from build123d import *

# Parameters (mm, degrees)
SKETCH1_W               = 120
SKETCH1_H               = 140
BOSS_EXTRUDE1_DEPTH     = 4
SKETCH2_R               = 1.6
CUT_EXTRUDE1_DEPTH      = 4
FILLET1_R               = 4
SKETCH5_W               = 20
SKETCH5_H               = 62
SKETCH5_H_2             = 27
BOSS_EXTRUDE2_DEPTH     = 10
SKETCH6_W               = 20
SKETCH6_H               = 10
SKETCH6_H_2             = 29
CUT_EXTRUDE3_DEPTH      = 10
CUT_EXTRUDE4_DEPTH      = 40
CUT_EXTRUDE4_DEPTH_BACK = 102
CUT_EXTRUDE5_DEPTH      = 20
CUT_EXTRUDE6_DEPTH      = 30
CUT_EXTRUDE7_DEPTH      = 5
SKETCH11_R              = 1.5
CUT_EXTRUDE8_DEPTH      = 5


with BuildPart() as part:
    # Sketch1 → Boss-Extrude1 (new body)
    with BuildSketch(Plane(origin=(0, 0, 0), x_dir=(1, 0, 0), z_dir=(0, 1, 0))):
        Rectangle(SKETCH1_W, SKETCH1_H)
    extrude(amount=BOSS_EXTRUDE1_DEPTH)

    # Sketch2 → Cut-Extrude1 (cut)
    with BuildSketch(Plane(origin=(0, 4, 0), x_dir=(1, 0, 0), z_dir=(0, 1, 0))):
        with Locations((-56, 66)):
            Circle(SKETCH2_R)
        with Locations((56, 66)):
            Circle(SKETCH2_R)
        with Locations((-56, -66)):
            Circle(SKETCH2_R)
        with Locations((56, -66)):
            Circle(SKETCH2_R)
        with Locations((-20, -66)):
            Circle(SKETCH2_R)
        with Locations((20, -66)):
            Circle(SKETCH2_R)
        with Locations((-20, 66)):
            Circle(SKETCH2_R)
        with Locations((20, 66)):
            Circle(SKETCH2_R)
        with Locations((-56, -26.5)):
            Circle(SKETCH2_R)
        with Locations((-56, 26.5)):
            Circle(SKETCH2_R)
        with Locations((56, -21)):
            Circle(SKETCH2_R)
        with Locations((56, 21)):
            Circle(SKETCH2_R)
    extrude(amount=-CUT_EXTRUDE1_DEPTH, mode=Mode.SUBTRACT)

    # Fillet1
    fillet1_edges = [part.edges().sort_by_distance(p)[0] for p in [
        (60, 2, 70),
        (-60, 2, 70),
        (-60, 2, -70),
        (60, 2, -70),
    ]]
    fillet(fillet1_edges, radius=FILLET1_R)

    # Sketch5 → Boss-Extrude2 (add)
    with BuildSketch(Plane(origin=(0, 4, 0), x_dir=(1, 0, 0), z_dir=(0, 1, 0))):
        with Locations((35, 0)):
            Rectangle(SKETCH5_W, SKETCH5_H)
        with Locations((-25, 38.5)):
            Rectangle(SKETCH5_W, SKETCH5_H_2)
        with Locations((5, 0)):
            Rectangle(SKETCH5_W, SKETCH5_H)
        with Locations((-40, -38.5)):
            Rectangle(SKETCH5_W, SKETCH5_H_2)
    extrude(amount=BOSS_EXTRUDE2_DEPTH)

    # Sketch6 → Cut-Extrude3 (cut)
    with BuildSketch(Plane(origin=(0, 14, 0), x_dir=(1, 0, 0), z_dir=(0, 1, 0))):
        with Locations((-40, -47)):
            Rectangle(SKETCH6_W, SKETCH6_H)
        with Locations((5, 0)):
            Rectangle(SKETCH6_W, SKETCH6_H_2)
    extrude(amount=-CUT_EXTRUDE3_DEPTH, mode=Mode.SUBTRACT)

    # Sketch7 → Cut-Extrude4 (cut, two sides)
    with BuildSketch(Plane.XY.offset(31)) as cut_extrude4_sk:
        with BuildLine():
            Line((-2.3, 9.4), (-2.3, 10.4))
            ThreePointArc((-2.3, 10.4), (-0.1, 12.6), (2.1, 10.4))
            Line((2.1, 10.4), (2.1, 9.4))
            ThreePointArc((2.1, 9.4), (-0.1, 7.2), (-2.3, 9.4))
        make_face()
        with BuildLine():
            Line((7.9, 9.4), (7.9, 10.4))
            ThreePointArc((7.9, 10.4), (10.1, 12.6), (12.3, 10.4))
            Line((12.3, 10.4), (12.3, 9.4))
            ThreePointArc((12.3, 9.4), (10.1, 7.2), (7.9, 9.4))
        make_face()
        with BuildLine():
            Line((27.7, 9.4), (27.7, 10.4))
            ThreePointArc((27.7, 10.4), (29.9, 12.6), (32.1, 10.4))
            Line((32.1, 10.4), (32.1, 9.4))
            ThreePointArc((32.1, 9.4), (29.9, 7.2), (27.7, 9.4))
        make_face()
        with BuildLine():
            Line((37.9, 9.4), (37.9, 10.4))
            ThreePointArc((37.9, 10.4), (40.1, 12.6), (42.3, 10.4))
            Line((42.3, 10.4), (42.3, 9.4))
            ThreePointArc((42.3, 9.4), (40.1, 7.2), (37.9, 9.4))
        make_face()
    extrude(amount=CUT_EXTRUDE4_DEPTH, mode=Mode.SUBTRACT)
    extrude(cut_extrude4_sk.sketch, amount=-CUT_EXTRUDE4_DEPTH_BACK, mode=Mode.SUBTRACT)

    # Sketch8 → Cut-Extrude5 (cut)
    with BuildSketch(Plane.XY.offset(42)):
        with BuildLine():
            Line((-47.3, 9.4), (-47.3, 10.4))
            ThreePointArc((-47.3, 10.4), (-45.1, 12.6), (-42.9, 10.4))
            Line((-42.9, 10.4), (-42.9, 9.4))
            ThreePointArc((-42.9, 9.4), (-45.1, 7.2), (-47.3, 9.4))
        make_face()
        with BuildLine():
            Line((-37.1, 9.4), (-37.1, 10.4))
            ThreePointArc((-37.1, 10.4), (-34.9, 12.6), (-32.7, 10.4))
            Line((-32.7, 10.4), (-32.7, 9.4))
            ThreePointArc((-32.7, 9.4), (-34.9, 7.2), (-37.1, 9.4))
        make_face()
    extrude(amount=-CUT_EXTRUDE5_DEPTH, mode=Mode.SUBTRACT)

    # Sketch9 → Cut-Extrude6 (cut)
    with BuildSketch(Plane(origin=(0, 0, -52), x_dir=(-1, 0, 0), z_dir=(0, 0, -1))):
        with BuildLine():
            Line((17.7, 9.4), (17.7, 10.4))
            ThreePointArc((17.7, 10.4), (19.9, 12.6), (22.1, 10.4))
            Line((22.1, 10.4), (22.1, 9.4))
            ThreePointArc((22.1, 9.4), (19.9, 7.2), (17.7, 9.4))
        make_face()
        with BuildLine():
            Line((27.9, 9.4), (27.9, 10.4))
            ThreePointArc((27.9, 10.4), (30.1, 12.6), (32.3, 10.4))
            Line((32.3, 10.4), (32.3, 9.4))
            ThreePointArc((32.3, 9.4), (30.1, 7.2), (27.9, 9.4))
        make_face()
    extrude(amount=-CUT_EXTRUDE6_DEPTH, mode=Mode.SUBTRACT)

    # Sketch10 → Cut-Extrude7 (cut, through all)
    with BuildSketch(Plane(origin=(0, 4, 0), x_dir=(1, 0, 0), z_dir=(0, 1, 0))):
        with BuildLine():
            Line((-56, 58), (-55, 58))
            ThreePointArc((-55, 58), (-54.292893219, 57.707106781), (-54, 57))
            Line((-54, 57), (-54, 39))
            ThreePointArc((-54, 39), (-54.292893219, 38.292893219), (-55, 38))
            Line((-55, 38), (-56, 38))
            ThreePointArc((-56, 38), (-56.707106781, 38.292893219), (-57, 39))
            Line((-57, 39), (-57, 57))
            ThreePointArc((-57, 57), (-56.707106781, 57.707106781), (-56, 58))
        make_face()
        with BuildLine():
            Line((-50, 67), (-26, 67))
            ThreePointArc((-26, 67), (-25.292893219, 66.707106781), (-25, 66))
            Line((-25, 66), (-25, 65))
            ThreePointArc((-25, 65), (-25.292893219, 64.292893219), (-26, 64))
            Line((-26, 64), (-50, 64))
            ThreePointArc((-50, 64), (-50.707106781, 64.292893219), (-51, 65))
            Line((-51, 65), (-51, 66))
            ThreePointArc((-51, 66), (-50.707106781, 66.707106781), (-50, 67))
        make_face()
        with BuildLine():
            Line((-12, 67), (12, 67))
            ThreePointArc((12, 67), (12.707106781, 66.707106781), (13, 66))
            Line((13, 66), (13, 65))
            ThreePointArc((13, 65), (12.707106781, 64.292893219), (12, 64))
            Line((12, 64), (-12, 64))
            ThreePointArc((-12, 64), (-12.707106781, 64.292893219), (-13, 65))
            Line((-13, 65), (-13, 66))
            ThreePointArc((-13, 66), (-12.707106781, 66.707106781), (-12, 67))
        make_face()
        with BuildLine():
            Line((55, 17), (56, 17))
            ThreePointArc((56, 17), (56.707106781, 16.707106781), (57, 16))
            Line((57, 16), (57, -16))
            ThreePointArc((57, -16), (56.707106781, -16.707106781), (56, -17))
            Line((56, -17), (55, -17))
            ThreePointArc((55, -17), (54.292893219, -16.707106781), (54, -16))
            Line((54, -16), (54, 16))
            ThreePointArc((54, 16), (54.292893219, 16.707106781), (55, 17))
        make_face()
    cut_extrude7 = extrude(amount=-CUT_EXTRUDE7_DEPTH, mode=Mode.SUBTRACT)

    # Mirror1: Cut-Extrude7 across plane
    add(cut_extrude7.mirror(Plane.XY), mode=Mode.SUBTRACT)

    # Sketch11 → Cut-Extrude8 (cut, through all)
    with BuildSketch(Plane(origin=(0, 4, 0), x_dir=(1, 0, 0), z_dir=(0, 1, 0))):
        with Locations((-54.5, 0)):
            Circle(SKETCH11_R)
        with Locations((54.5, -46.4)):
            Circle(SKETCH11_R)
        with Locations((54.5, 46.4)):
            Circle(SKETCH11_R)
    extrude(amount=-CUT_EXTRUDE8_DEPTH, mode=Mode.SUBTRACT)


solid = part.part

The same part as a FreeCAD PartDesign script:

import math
import FreeCAD as App
import Part
import Sketcher
from FreeCAD import Vector


def edges_at(feature, points):
    """Names of the edges that pass closest to the given points."""
    edges = feature.Shape.Edges
    near = lambda p: min(range(len(edges)), key=lambda i: edges[i].distToShape(Part.Vertex(*p))[0])
    return sorted({f"Edge{near(p) + 1}" for p in points})


def add_polygon(sketch, points):
    """Adds a closed chain of lines whose ends are joined by coincident constraints."""
    first, n = sketch.GeometryCount, len(points)
    for a, b in zip(points, points[1:] + points[:1]):
        sketch.addGeometry(Part.LineSegment(App.Vector(*a, 0), App.Vector(*b, 0)), False)
    for i in range(n):
        sketch.addConstraint(Sketcher.Constraint("Coincident", first + i, 2, first + (i + 1) % n, 1))

doc = App.newDocument("Part")
body = doc.addObject("PartDesign::Body", "Body")

# Sketch on XZ plane
sketch1 = body.newObject("Sketcher::SketchObject", "Sketch")
sketch1.AttachmentSupport = (doc.getObject("XZ_Plane"), [""])
sketch1.MapMode = "FlatFace"
add_polygon(sketch1, [(-60, -70), (-60, 70), (60, 70), (60, -70)])  # lines 0-3
sketch1.addConstraint(Sketcher.Constraint("Vertical", 0))
sketch1.addConstraint(Sketcher.Constraint("Horizontal", 1))
sketch1.addConstraint(Sketcher.Constraint("Vertical", 2))
sketch1.addConstraint(Sketcher.Constraint("Horizontal", 3))
sketch1.addConstraint(Sketcher.Constraint("Symmetric", 0, 2, 2, 2, -1, 1))
sketch1.addConstraint(Sketcher.Constraint("DistanceX", 1, 1, 1, 2, 120.0))
sketch1.addConstraint(Sketcher.Constraint("DistanceY", 0, 1, 0, 2, 140.0))
pad1 = body.newObject("PartDesign::Pad", "Pad")
pad1.Profile = sketch1
pad1.Length = 4
pad1.Reversed = True

# Sketch on XZ plane
sketch2 = body.newObject("Sketcher::SketchObject", "Sketch001")
sketch2.AttachmentSupport = (doc.getObject("XZ_Plane"), [""])
sketch2.MapMode = "FlatFace"
sketch2.AttachmentOffset = App.Placement(Vector(0, 0, -4), App.Rotation())
sketch2.addGeometry(Part.Circle(Vector(-56, -66, 0), Vector(0, 0, 1), 1.6), False)
sketch2.addGeometry(Part.Circle(Vector(56, -66, 0), Vector(0, 0, 1), 1.6), False)
sketch2.addGeometry(Part.Circle(Vector(-56, 66, 0), Vector(0, 0, 1), 1.6), False)
sketch2.addGeometry(Part.Circle(Vector(56, 66, 0), Vector(0, 0, 1), 1.6), False)
sketch2.addGeometry(Part.Circle(Vector(-20, 66, 0), Vector(0, 0, 1), 1.6), False)
sketch2.addGeometry(Part.Circle(Vector(20, 66, 0), Vector(0, 0, 1), 1.6), False)
sketch2.addGeometry(Part.Circle(Vector(-20, -66, 0), Vector(0, 0, 1), 1.6), False)
sketch2.addGeometry(Part.Circle(Vector(20, -66, 0), Vector(0, 0, 1), 1.6), False)
sketch2.addGeometry(Part.Circle(Vector(-56, 26.5, 0), Vector(0, 0, 1), 1.6), False)
sketch2.addGeometry(Part.Circle(Vector(-56, -26.5, 0), Vector(0, 0, 1), 1.6), False)
sketch2.addGeometry(Part.Circle(Vector(56, 21, 0), Vector(0, 0, 1), 1.6), False)
sketch2.addGeometry(Part.Circle(Vector(56, -21, 0), Vector(0, 0, 1), 1.6), False)
sketch2.addConstraint(Sketcher.Constraint("Equal", 0, 1))
sketch2.addConstraint(Sketcher.Constraint("Equal", 1, 2))
sketch2.addConstraint(Sketcher.Constraint("Equal", 2, 3))
sketch2.addConstraint(Sketcher.Constraint("Equal", 3, 4))
sketch2.addConstraint(Sketcher.Constraint("Equal", 4, 5))
sketch2.addConstraint(Sketcher.Constraint("Equal", 5, 6))
sketch2.addConstraint(Sketcher.Constraint("Equal", 6, 7))
sketch2.addConstraint(Sketcher.Constraint("Equal", 7, 8))
sketch2.addConstraint(Sketcher.Constraint("Equal", 8, 9))
sketch2.addConstraint(Sketcher.Constraint("Equal", 9, 10))
sketch2.addConstraint(Sketcher.Constraint("Equal", 10, 11))
sketch2.addConstraint(Sketcher.Constraint("Symmetric", 1, 3, 2, 3, -1, 1))
sketch2.addConstraint(Sketcher.Constraint("Symmetric", 0, 3, 3, 3, -1, 1))
sketch2.addConstraint(Sketcher.Constraint("Symmetric", 5, 3, 6, 3, -1, 1))
sketch2.addConstraint(Sketcher.Constraint("Symmetric", 4, 3, 7, 3, -1, 1))
sketch2.addConstraint(Sketcher.Constraint("Symmetric", 0, 3, 1, 3, -2))
sketch2.addConstraint(Sketcher.Constraint("Symmetric", 4, 3, 5, 3, -2))
sketch2.addConstraint(Sketcher.Constraint("Symmetric", 8, 3, 9, 3, -1))
sketch2.addConstraint(Sketcher.Constraint("Symmetric", 10, 3, 11, 3, -1))
sketch2.addConstraint(Sketcher.Constraint("Horizontal", 3, 3, 4, 3))
sketch2.addConstraint(Sketcher.Constraint("Vertical", 2, 3, 8, 3))
sketch2.addConstraint(Sketcher.Constraint("Vertical", 3, 3, 10, 3))
sketch2.addConstraint(Sketcher.Constraint("Diameter", 0, 3.2))
sketch2.addConstraint(Sketcher.Constraint("DistanceX", 0, 3, -1, 1, 56.0))
sketch2.addConstraint(Sketcher.Constraint("DistanceY", 0, 3, -1, 1, 66.0))
sketch2.addConstraint(Sketcher.Constraint("DistanceX", 4, 3, -1, 1, 20.0))
sketch2.addConstraint(Sketcher.Constraint("DistanceY", -1, 1, 10, 3, 21.0))
sketch2.addConstraint(Sketcher.Constraint("DistanceY", 9, 3, 8, 3, 53.0))
pocket1 = body.newObject("PartDesign::Pocket", "Pocket")
pocket1.Profile = sketch2
pocket1.Length = 4
pocket1.Reversed = True
doc.recompute()

fillet = body.newObject("PartDesign::Fillet", "Fillet")
fillet.Base = (pocket1, edges_at(pocket1, [
    (60, 2, 70),
    (-60, 2, 70),
    (-60, 2, -70),
    (60, 2, -70),
]))
fillet.Radius = 4

# Sketch on XZ plane
sketch3 = body.newObject("Sketcher::SketchObject", "Sketch002")
sketch3.AttachmentSupport = (doc.getObject("XZ_Plane"), [""])
sketch3.MapMode = "FlatFace"
sketch3.AttachmentOffset = App.Placement(Vector(0, 0, -4), App.Rotation())
add_polygon(sketch3, [(25, -31), (25, 31), (45, 31), (45, -31)])  # lines 0-3
add_polygon(sketch3, [(-35, -52), (-35, -25), (-15, -25), (-15, -52)])  # lines 4-7
add_polygon(sketch3, [(-5, -31), (-5, 31), (15, 31), (15, -31)])  # lines 8-11
add_polygon(sketch3, [(-50, 25), (-50, 52), (-30, 52), (-30, 25)])  # lines 12-15
sketch3.addConstraint(Sketcher.Constraint("Vertical", 0))
sketch3.addConstraint(Sketcher.Constraint("Horizontal", 1))
sketch3.addConstraint(Sketcher.Constraint("Vertical", 2))
sketch3.addConstraint(Sketcher.Constraint("Horizontal", 3))
sketch3.addConstraint(Sketcher.Constraint("Vertical", 4))
sketch3.addConstraint(Sketcher.Constraint("Horizontal", 5))
sketch3.addConstraint(Sketcher.Constraint("Vertical", 6))
sketch3.addConstraint(Sketcher.Constraint("Horizontal", 7))
sketch3.addConstraint(Sketcher.Constraint("Vertical", 8))
sketch3.addConstraint(Sketcher.Constraint("Horizontal", 9))
sketch3.addConstraint(Sketcher.Constraint("Vertical", 10))
sketch3.addConstraint(Sketcher.Constraint("Horizontal", 11))
sketch3.addConstraint(Sketcher.Constraint("Vertical", 12))
sketch3.addConstraint(Sketcher.Constraint("Horizontal", 13))
sketch3.addConstraint(Sketcher.Constraint("Vertical", 14))
sketch3.addConstraint(Sketcher.Constraint("Horizontal", 15))
sketch3.addConstraint(Sketcher.Constraint("Horizontal", 1, 2, 8, 2))
sketch3.addConstraint(Sketcher.Constraint("Horizontal", 3, 2, 10, 2))
sketch3.addConstraint(Sketcher.Constraint("Equal", 3, 5))
sketch3.addConstraint(Sketcher.Constraint("Equal", 7, 9))
sketch3.addConstraint(Sketcher.Constraint("Equal", 11, 13))
sketch3.addConstraint(Sketcher.Constraint("Equal", 6, 12))
sketch3.addConstraint(Sketcher.Constraint("DistanceX", 1, 1, 1, 2, 20.0))
sketch3.addConstraint(Sketcher.Constraint("DistanceY", 0, 1, 0, 2, 62.0))
sketch3.addConstraint(Sketcher.Constraint("DistanceY", 4, 1, 4, 2, 27.0))
sketch3.addConstraint(Sketcher.Constraint("DistanceX", -1, 1, 0, 2, 25.0))
sketch3.addConstraint(Sketcher.Constraint("DistanceY", -1, 1, 0, 2, 31.0))
sketch3.addConstraint(Sketcher.Constraint("DistanceX", 4, 2, -1, 1, 35.0))
sketch3.addConstraint(Sketcher.Constraint("DistanceY", 4, 2, -1, 1, 25.0))
sketch3.addConstraint(Sketcher.Constraint("DistanceX", 8, 2, -1, 1, 5.0))
sketch3.addConstraint(Sketcher.Constraint("DistanceX", 12, 2, -1, 1, 50.0))
sketch3.addConstraint(Sketcher.Constraint("DistanceY", -1, 1, 12, 2, 52.0))
pad2 = body.newObject("PartDesign::Pad", "Pad001")
pad2.Profile = sketch3
pad2.Length = 10
pad2.Reversed = True

# Sketch on XZ plane
sketch4 = body.newObject("Sketcher::SketchObject", "Sketch003")
sketch4.AttachmentSupport = (doc.getObject("XZ_Plane"), [""])
sketch4.MapMode = "FlatFace"
sketch4.AttachmentOffset = App.Placement(Vector(0, 0, -14), App.Rotation())
add_polygon(sketch4, [(-50, 42), (-50, 52), (-30, 52), (-30, 42)])  # lines 0-3
add_polygon(sketch4, [(-5, -14), (-5, 14), (15, 14), (15, -14)])  # lines 4-7
sketch4.addConstraint(Sketcher.Constraint("Vertical", 0))
sketch4.addConstraint(Sketcher.Constraint("Horizontal", 1))
sketch4.addConstraint(Sketcher.Constraint("Vertical", 2))
sketch4.addConstraint(Sketcher.Constraint("Horizontal", 3))
sketch4.addConstraint(Sketcher.Constraint("Vertical", 4))
sketch4.addConstraint(Sketcher.Constraint("Horizontal", 5))
sketch4.addConstraint(Sketcher.Constraint("Vertical", 6))
sketch4.addConstraint(Sketcher.Constraint("Horizontal", 7))
sketch4.addConstraint(Sketcher.Constraint("Equal", 3, 5))
sketch4.addConstraint(Sketcher.Constraint("DistanceX", 1, 1, 1, 2, 20.0))
sketch4.addConstraint(Sketcher.Constraint("DistanceY", 0, 1, 0, 2, 10.0))
sketch4.addConstraint(Sketcher.Constraint("DistanceY", 4, 1, 4, 2, 29.0))
sketch4.addConstraint(Sketcher.Constraint("DistanceX", 0, 2, -1, 1, 50.0))
sketch4.addConstraint(Sketcher.Constraint("DistanceY", -1, 1, 0, 2, 52.0))
sketch4.addConstraint(Sketcher.Constraint("DistanceX", 4, 2, -1, 1, 5.0))
sketch4.addConstraint(Sketcher.Constraint("DistanceY", -1, 1, 4, 2, 14.5))
pocket2 = body.newObject("PartDesign::Pocket", "Pocket001")
pocket2.Profile = sketch4
pocket2.Length = 10
pocket2.Reversed = True

# Sketch on XY plane
sketch5 = body.newObject("Sketcher::SketchObject", "Sketch004")
sketch5.AttachmentSupport = (doc.getObject("XY_Plane"), [""])
sketch5.MapMode = "FlatFace"
sketch5.AttachmentOffset = App.Placement(Vector(0, 0, 31), App.Rotation())
sketch5.addGeometry(Part.LineSegment(Vector(-2.3, 10.4, 0), Vector(-2.3, 9.4, 0)), False)
sketch5.addGeometry(Part.ArcOfCircle(Part.Circle(Vector(-0.1, 9.4, 0), Vector(0, 0, 1), 2.2), math.radians(180), math.radians(360)), False)
sketch5.addGeometry(Part.LineSegment(Vector(2.1, 9.4, 0), Vector(2.1, 10.4, 0)), False)
sketch5.addGeometry(Part.ArcOfCircle(Part.Circle(Vector(-0.1, 10.4, 0), Vector(0, 0, 1), 2.2), math.radians(0), math.radians(180)), False)
sketch5.addGeometry(Part.LineSegment(Vector(7.9, 10.4, 0), Vector(7.9, 9.4, 0)), False)
sketch5.addGeometry(Part.ArcOfCircle(Part.Circle(Vector(10.1, 9.4, 0), Vector(0, 0, 1), 2.2), math.radians(180), math.radians(360)), False)
sketch5.addGeometry(Part.LineSegment(Vector(12.3, 9.4, 0), Vector(12.3, 10.4, 0)), False)
sketch5.addGeometry(Part.ArcOfCircle(Part.Circle(Vector(10.1, 10.4, 0), Vector(0, 0, 1), 2.2), math.radians(0), math.radians(180)), False)
sketch5.addGeometry(Part.LineSegment(Vector(27.7, 10.4, 0), Vector(27.7, 9.4, 0)), False)
sketch5.addGeometry(Part.ArcOfCircle(Part.Circle(Vector(29.9, 9.4, 0), Vector(0, 0, 1), 2.2), math.radians(180), math.radians(360)), False)
sketch5.addGeometry(Part.LineSegment(Vector(32.1, 9.4, 0), Vector(32.1, 10.4, 0)), False)
sketch5.addGeometry(Part.ArcOfCircle(Part.Circle(Vector(29.9, 10.4, 0), Vector(0, 0, 1), 2.2), math.radians(0), math.radians(180)), False)
sketch5.addGeometry(Part.LineSegment(Vector(37.9, 10.4, 0), Vector(37.9, 9.4, 0)), False)
sketch5.addGeometry(Part.ArcOfCircle(Part.Circle(Vector(40.1, 9.4, 0), Vector(0, 0, 1), 2.2), math.radians(180), math.radians(360)), False)
sketch5.addGeometry(Part.LineSegment(Vector(42.3, 9.4, 0), Vector(42.3, 10.4, 0)), False)
sketch5.addGeometry(Part.ArcOfCircle(Part.Circle(Vector(40.1, 10.4, 0), Vector(0, 0, 1), 2.2), math.radians(0), math.radians(180)), False)
sketch5.addConstraint(Sketcher.Constraint("Tangent", 0, 2, 1, 1))
sketch5.addConstraint(Sketcher.Constraint("Tangent", 1, 2, 2, 1))
sketch5.addConstraint(Sketcher.Constraint("Tangent", 2, 2, 3, 1))
sketch5.addConstraint(Sketcher.Constraint("Tangent", 3, 2, 0, 1))
sketch5.addConstraint(Sketcher.Constraint("Tangent", 4, 2, 5, 1))
sketch5.addConstraint(Sketcher.Constraint("Tangent", 5, 2, 6, 1))
sketch5.addConstraint(Sketcher.Constraint("Tangent", 6, 2, 7, 1))
sketch5.addConstraint(Sketcher.Constraint("Tangent", 7, 2, 4, 1))
sketch5.addConstraint(Sketcher.Constraint("Tangent", 8, 2, 9, 1))
sketch5.addConstraint(Sketcher.Constraint("Tangent", 9, 2, 10, 1))
sketch5.addConstraint(Sketcher.Constraint("Tangent", 10, 2, 11, 1))
sketch5.addConstraint(Sketcher.Constraint("Tangent", 11, 2, 8, 1))
sketch5.addConstraint(Sketcher.Constraint("Tangent", 12, 2, 13, 1))
sketch5.addConstraint(Sketcher.Constraint("Tangent", 13, 2, 14, 1))
sketch5.addConstraint(Sketcher.Constraint("Tangent", 14, 2, 15, 1))
sketch5.addConstraint(Sketcher.Constraint("Tangent", 15, 2, 12, 1))
sketch5.addConstraint(Sketcher.Constraint("Vertical", 0))
sketch5.addConstraint(Sketcher.Constraint("Vertical", 2))
sketch5.addConstraint(Sketcher.Constraint("Vertical", 4))
sketch5.addConstraint(Sketcher.Constraint("Vertical", 6))
sketch5.addConstraint(Sketcher.Constraint("Vertical", 8))
sketch5.addConstraint(Sketcher.Constraint("Vertical", 10))
sketch5.addConstraint(Sketcher.Constraint("Vertical", 12))
sketch5.addConstraint(Sketcher.Constraint("Vertical", 14))
sketch5.addConstraint(Sketcher.Constraint("Equal", 3, 5))
sketch5.addConstraint(Sketcher.Constraint("Equal", 7, 9))
sketch5.addConstraint(Sketcher.Constraint("Equal", 11, 13))
sketch5.addConstraint(Sketcher.Constraint("Horizontal", 1, 3, 5, 3))
sketch5.addConstraint(Sketcher.Constraint("Horizontal", 3, 3, 7, 3))
sketch5.addConstraint(Sketcher.Constraint("Horizontal", 5, 3, 9, 3))
sketch5.addConstraint(Sketcher.Constraint("Horizontal", 7, 3, 11, 3))
sketch5.addConstraint(Sketcher.Constraint("Horizontal", 9, 3, 13, 3))
sketch5.addConstraint(Sketcher.Constraint("Horizontal", 11, 3, 15, 3))
sketch5.addConstraint(Sketcher.Constraint("Radius", 1, 2.2))
sketch5.addConstraint(Sketcher.Constraint("DistanceY", 0, 2, 0, 1, 1.0))
sketch5.addConstraint(Sketcher.Constraint("DistanceX", 1, 3, 9, 3, 30.0))
sketch5.addConstraint(Sketcher.Constraint("DistanceX", 5, 3, 13, 3, 30.0))
sketch5.addConstraint(Sketcher.Constraint("DistanceX", 1, 2, 5, 3, 8.0))
sketch5.addConstraint(Sketcher.Constraint("DistanceX", 1, 3, -1, 1, 0.1))
sketch5.addConstraint(Sketcher.Constraint("DistanceY", -1, 1, 1, 3, 9.4))
pocket3 = body.newObject("PartDesign::Pocket", "Pocket002")
pocket3.Profile = sketch5
pocket3.Type = "ThroughAll"
pocket3.Midplane = True

# Sketch on XY plane
sketch6 = body.newObject("Sketcher::SketchObject", "Sketch005")
sketch6.AttachmentSupport = (doc.getObject("XY_Plane"), [""])
sketch6.MapMode = "FlatFace"
sketch6.AttachmentOffset = App.Placement(Vector(0, 0, 42), App.Rotation())
sketch6.addGeometry(Part.LineSegment(Vector(-47.3, 10.4, 0), Vector(-47.3, 9.4, 0)), False)
sketch6.addGeometry(Part.ArcOfCircle(Part.Circle(Vector(-45.1, 9.4, 0), Vector(0, 0, 1), 2.2), math.radians(180), math.radians(360)), False)
sketch6.addGeometry(Part.LineSegment(Vector(-42.9, 9.4, 0), Vector(-42.9, 10.4, 0)), False)
sketch6.addGeometry(Part.ArcOfCircle(Part.Circle(Vector(-45.1, 10.4, 0), Vector(0, 0, 1), 2.2), math.radians(0), math.radians(180)), False)
sketch6.addGeometry(Part.LineSegment(Vector(-37.1, 10.4, 0), Vector(-37.1, 9.4, 0)), False)
sketch6.addGeometry(Part.ArcOfCircle(Part.Circle(Vector(-34.9, 9.4, 0), Vector(0, 0, 1), 2.2), math.radians(180), math.radians(360)), False)
sketch6.addGeometry(Part.LineSegment(Vector(-32.7, 9.4, 0), Vector(-32.7, 10.4, 0)), False)
sketch6.addGeometry(Part.ArcOfCircle(Part.Circle(Vector(-34.9, 10.4, 0), Vector(0, 0, 1), 2.2), math.radians(0), math.radians(180)), False)
sketch6.addConstraint(Sketcher.Constraint("Tangent", 0, 2, 1, 1))
sketch6.addConstraint(Sketcher.Constraint("Tangent", 1, 2, 2, 1))
sketch6.addConstraint(Sketcher.Constraint("Tangent", 2, 2, 3, 1))
sketch6.addConstraint(Sketcher.Constraint("Tangent", 3, 2, 0, 1))
sketch6.addConstraint(Sketcher.Constraint("Tangent", 4, 2, 5, 1))
sketch6.addConstraint(Sketcher.Constraint("Tangent", 5, 2, 6, 1))
sketch6.addConstraint(Sketcher.Constraint("Tangent", 6, 2, 7, 1))
sketch6.addConstraint(Sketcher.Constraint("Tangent", 7, 2, 4, 1))
sketch6.addConstraint(Sketcher.Constraint("Vertical", 0))
sketch6.addConstraint(Sketcher.Constraint("Vertical", 2))
sketch6.addConstraint(Sketcher.Constraint("Vertical", 4))
sketch6.addConstraint(Sketcher.Constraint("Vertical", 6))
sketch6.addConstraint(Sketcher.Constraint("Equal", 3, 5))
sketch6.addConstraint(Sketcher.Constraint("Horizontal", 1, 3, 5, 3))
sketch6.addConstraint(Sketcher.Constraint("Horizontal", 3, 3, 7, 3))
sketch6.addConstraint(Sketcher.Constraint("Radius", 1, 2.2))
sketch6.addConstraint(Sketcher.Constraint("DistanceY", 0, 2, 0, 1, 1.0))
sketch6.addConstraint(Sketcher.Constraint("DistanceX", 1, 2, 5, 3, 8.0))
sketch6.addConstraint(Sketcher.Constraint("DistanceX", 1, 3, -1, 1, 45.1))
sketch6.addConstraint(Sketcher.Constraint("DistanceY", -1, 1, 1, 3, 9.4))
pocket4 = body.newObject("PartDesign::Pocket", "Pocket003")
pocket4.Profile = sketch6
pocket4.Length = 20

# Sketch on XY plane
sketch7 = body.newObject("Sketcher::SketchObject", "Sketch006")
sketch7.AttachmentSupport = (doc.getObject("XY_Plane"), [""])
sketch7.MapMode = "FlatFace"
sketch7.AttachmentOffset = App.Placement(Vector(0, 0, -52), App.Rotation())
sketch7.addGeometry(Part.LineSegment(Vector(-17.7, 10.4, 0), Vector(-17.7, 9.4, 0)), False)
sketch7.addGeometry(Part.ArcOfCircle(Part.Circle(Vector(-19.9, 9.4, 0), Vector(0, 0, 1), 2.2), math.radians(180), math.radians(360)), False)
sketch7.addGeometry(Part.LineSegment(Vector(-22.1, 9.4, 0), Vector(-22.1, 10.4, 0)), False)
sketch7.addGeometry(Part.ArcOfCircle(Part.Circle(Vector(-19.9, 10.4, 0), Vector(0, 0, 1), 2.2), math.radians(0), math.radians(180)), False)
sketch7.addGeometry(Part.LineSegment(Vector(-27.9, 10.4, 0), Vector(-27.9, 9.4, 0)), False)
sketch7.addGeometry(Part.ArcOfCircle(Part.Circle(Vector(-30.1, 9.4, 0), Vector(0, 0, 1), 2.2), math.radians(180), math.radians(360)), False)
sketch7.addGeometry(Part.LineSegment(Vector(-32.3, 9.4, 0), Vector(-32.3, 10.4, 0)), False)
sketch7.addGeometry(Part.ArcOfCircle(Part.Circle(Vector(-30.1, 10.4, 0), Vector(0, 0, 1), 2.2), math.radians(0), math.radians(180)), False)
sketch7.addConstraint(Sketcher.Constraint("Tangent", 0, 2, 1, 2))
sketch7.addConstraint(Sketcher.Constraint("Tangent", 1, 1, 2, 1))
sketch7.addConstraint(Sketcher.Constraint("Tangent", 2, 2, 3, 2))
sketch7.addConstraint(Sketcher.Constraint("Tangent", 3, 1, 0, 1))
sketch7.addConstraint(Sketcher.Constraint("Tangent", 4, 2, 5, 2))
sketch7.addConstraint(Sketcher.Constraint("Tangent", 5, 1, 6, 1))
sketch7.addConstraint(Sketcher.Constraint("Tangent", 6, 2, 7, 2))
sketch7.addConstraint(Sketcher.Constraint("Tangent", 7, 1, 4, 1))
sketch7.addConstraint(Sketcher.Constraint("Vertical", 0))
sketch7.addConstraint(Sketcher.Constraint("Vertical", 2))
sketch7.addConstraint(Sketcher.Constraint("Vertical", 4))
sketch7.addConstraint(Sketcher.Constraint("Vertical", 6))
sketch7.addConstraint(Sketcher.Constraint("Equal", 3, 5))
sketch7.addConstraint(Sketcher.Constraint("Horizontal", 1, 3, 5, 3))
sketch7.addConstraint(Sketcher.Constraint("Horizontal", 3, 3, 7, 3))
sketch7.addConstraint(Sketcher.Constraint("Radius", 1, 2.2))
sketch7.addConstraint(Sketcher.Constraint("DistanceY", 0, 2, 0, 1, 1.0))
sketch7.addConstraint(Sketcher.Constraint("DistanceX", 5, 3, 1, 1, 8.0))
sketch7.addConstraint(Sketcher.Constraint("DistanceX", 1, 3, -1, 1, 19.9))
sketch7.addConstraint(Sketcher.Constraint("DistanceY", -1, 1, 1, 3, 9.4))
pocket5 = body.newObject("PartDesign::Pocket", "Pocket004")
pocket5.Profile = sketch7
pocket5.Length = 30
pocket5.Reversed = True

# Sketch on XZ plane
sketch8 = body.newObject("Sketcher::SketchObject", "Sketch007")
sketch8.AttachmentSupport = (doc.getObject("XZ_Plane"), [""])
sketch8.MapMode = "FlatFace"
sketch8.AttachmentOffset = App.Placement(Vector(0, 0, -4), App.Rotation())
sketch8.addGeometry(Part.LineSegment(Vector(-55, -58, 0), Vector(-56, -58, 0)), False)
sketch8.addGeometry(Part.ArcOfCircle(Part.Circle(Vector(-56, -57, 0), Vector(0, 0, 1), 1), math.radians(-180), math.radians(-90)), False)
sketch8.addGeometry(Part.LineSegment(Vector(-57, -57, 0), Vector(-57, -39, 0)), False)
sketch8.addGeometry(Part.ArcOfCircle(Part.Circle(Vector(-56, -39, 0), Vector(0, 0, 1), 1), math.radians(90), math.radians(180)), False)
sketch8.addGeometry(Part.LineSegment(Vector(-56, -38, 0), Vector(-55, -38, 0)), False)
sketch8.addGeometry(Part.ArcOfCircle(Part.Circle(Vector(-55, -39, 0), Vector(0, 0, 1), 1), math.radians(0), math.radians(90)), False)
sketch8.addGeometry(Part.LineSegment(Vector(-54, -39, 0), Vector(-54, -57, 0)), False)
sketch8.addGeometry(Part.ArcOfCircle(Part.Circle(Vector(-55, -57, 0), Vector(0, 0, 1), 1), math.radians(-90), math.radians(0)), False)
sketch8.addGeometry(Part.LineSegment(Vector(-26, -67, 0), Vector(-50, -67, 0)), False)
sketch8.addGeometry(Part.ArcOfCircle(Part.Circle(Vector(-50, -66, 0), Vector(0, 0, 1), 1), math.radians(-180), math.radians(-90)), False)
sketch8.addGeometry(Part.LineSegment(Vector(-51, -66, 0), Vector(-51, -65, 0)), False)
sketch8.addGeometry(Part.ArcOfCircle(Part.Circle(Vector(-50, -65, 0), Vector(0, 0, 1), 1), math.radians(90), math.radians(180)), False)
sketch8.addGeometry(Part.LineSegment(Vector(-50, -64, 0), Vector(-26, -64, 0)), False)
sketch8.addGeometry(Part.ArcOfCircle(Part.Circle(Vector(-26, -65, 0), Vector(0, 0, 1), 1), math.radians(0), math.radians(90)), False)
sketch8.addGeometry(Part.LineSegment(Vector(-25, -65, 0), Vector(-25, -66, 0)), False)
sketch8.addGeometry(Part.ArcOfCircle(Part.Circle(Vector(-26, -66, 0), Vector(0, 0, 1), 1), math.radians(-90), math.radians(0)), False)
sketch8.addGeometry(Part.LineSegment(Vector(12, -67, 0), Vector(-12, -67, 0)), False)
sketch8.addGeometry(Part.ArcOfCircle(Part.Circle(Vector(-12, -66, 0), Vector(0, 0, 1), 1), math.radians(-180), math.radians(-90)), False)
sketch8.addGeometry(Part.LineSegment(Vector(-13, -66, 0), Vector(-13, -65, 0)), False)
sketch8.addGeometry(Part.ArcOfCircle(Part.Circle(Vector(-12, -65, 0), Vector(0, 0, 1), 1), math.radians(90), math.radians(180)), False)
sketch8.addGeometry(Part.LineSegment(Vector(-12, -64, 0), Vector(12, -64, 0)), False)
sketch8.addGeometry(Part.ArcOfCircle(Part.Circle(Vector(12, -65, 0), Vector(0, 0, 1), 1), math.radians(0), math.radians(90)), False)
sketch8.addGeometry(Part.LineSegment(Vector(13, -65, 0), Vector(13, -66, 0)), False)
sketch8.addGeometry(Part.ArcOfCircle(Part.Circle(Vector(12, -66, 0), Vector(0, 0, 1), 1), math.radians(-90), math.radians(0)), False)
sketch8.addGeometry(Part.LineSegment(Vector(56, -17, 0), Vector(55, -17, 0)), False)
sketch8.addGeometry(Part.ArcOfCircle(Part.Circle(Vector(55, -16, 0), Vector(0, 0, 1), 1), math.radians(-180), math.radians(-90)), False)
sketch8.addGeometry(Part.LineSegment(Vector(54, -16, 0), Vector(54, 16, 0)), False)
sketch8.addGeometry(Part.ArcOfCircle(Part.Circle(Vector(55, 16, 0), Vector(0, 0, 1), 1), math.radians(90), math.radians(180)), False)
sketch8.addGeometry(Part.LineSegment(Vector(55, 17, 0), Vector(56, 17, 0)), False)
sketch8.addGeometry(Part.ArcOfCircle(Part.Circle(Vector(56, 16, 0), Vector(0, 0, 1), 1), math.radians(0), math.radians(90)), False)
sketch8.addGeometry(Part.LineSegment(Vector(57, 16, 0), Vector(57, -16, 0)), False)
sketch8.addGeometry(Part.ArcOfCircle(Part.Circle(Vector(56, -16, 0), Vector(0, 0, 1), 1), math.radians(-90), math.radians(0)), False)
sketch8.addConstraint(Sketcher.Constraint("Tangent", 0, 2, 1, 2))
sketch8.addConstraint(Sketcher.Constraint("Tangent", 1, 1, 2, 1))
sketch8.addConstraint(Sketcher.Constraint("Tangent", 2, 2, 3, 2))
sketch8.addConstraint(Sketcher.Constraint("Tangent", 3, 1, 4, 1))
sketch8.addConstraint(Sketcher.Constraint("Tangent", 4, 2, 5, 2))
sketch8.addConstraint(Sketcher.Constraint("Tangent", 5, 1, 6, 1))
sketch8.addConstraint(Sketcher.Constraint("Tangent", 6, 2, 7, 2))
sketch8.addConstraint(Sketcher.Constraint("Tangent", 7, 1, 0, 1))
sketch8.addConstraint(Sketcher.Constraint("Tangent", 8, 2, 9, 2))
sketch8.addConstraint(Sketcher.Constraint("Tangent", 9, 1, 10, 1))
sketch8.addConstraint(Sketcher.Constraint("Tangent", 10, 2, 11, 2))
sketch8.addConstraint(Sketcher.Constraint("Tangent", 11, 1, 12, 1))
sketch8.addConstraint(Sketcher.Constraint("Tangent", 12, 2, 13, 2))
sketch8.addConstraint(Sketcher.Constraint("Tangent", 13, 1, 14, 1))
sketch8.addConstraint(Sketcher.Constraint("Tangent", 14, 2, 15, 2))
sketch8.addConstraint(Sketcher.Constraint("Tangent", 15, 1, 8, 1))
sketch8.addConstraint(Sketcher.Constraint("Tangent", 16, 2, 17, 2))
sketch8.addConstraint(Sketcher.Constraint("Tangent", 17, 1, 18, 1))
sketch8.addConstraint(Sketcher.Constraint("Tangent", 18, 2, 19, 2))
sketch8.addConstraint(Sketcher.Constraint("Tangent", 19, 1, 20, 1))
sketch8.addConstraint(Sketcher.Constraint("Tangent", 20, 2, 21, 2))
sketch8.addConstraint(Sketcher.Constraint("Tangent", 21, 1, 22, 1))
sketch8.addConstraint(Sketcher.Constraint("Tangent", 22, 2, 23, 2))
sketch8.addConstraint(Sketcher.Constraint("Tangent", 23, 1, 16, 1))
sketch8.addConstraint(Sketcher.Constraint("Tangent", 24, 2, 25, 2))
sketch8.addConstraint(Sketcher.Constraint("Tangent", 25, 1, 26, 1))
sketch8.addConstraint(Sketcher.Constraint("Tangent", 26, 2, 27, 2))
sketch8.addConstraint(Sketcher.Constraint("Tangent", 27, 1, 28, 1))
sketch8.addConstraint(Sketcher.Constraint("Tangent", 28, 2, 29, 2))
sketch8.addConstraint(Sketcher.Constraint("Tangent", 29, 1, 30, 1))
sketch8.addConstraint(Sketcher.Constraint("Tangent", 30, 2, 31, 2))
sketch8.addConstraint(Sketcher.Constraint("Tangent", 31, 1, 24, 1))
sketch8.addConstraint(Sketcher.Constraint("Horizontal", 0))
sketch8.addConstraint(Sketcher.Constraint("Vertical", 2))
sketch8.addConstraint(Sketcher.Constraint("Horizontal", 4))
sketch8.addConstraint(Sketcher.Constraint("Vertical", 6))
sketch8.addConstraint(Sketcher.Constraint("Horizontal", 8))
sketch8.addConstraint(Sketcher.Constraint("Vertical", 10))
sketch8.addConstraint(Sketcher.Constraint("Horizontal", 12))
sketch8.addConstraint(Sketcher.Constraint("Vertical", 14))
sketch8.addConstraint(Sketcher.Constraint("Horizontal", 16))
sketch8.addConstraint(Sketcher.Constraint("Vertical", 18))
sketch8.addConstraint(Sketcher.Constraint("Horizontal", 20))
sketch8.addConstraint(Sketcher.Constraint("Vertical", 22))
sketch8.addConstraint(Sketcher.Constraint("Horizontal", 24))
sketch8.addConstraint(Sketcher.Constraint("Vertical", 26))
sketch8.addConstraint(Sketcher.Constraint("Horizontal", 28))
sketch8.addConstraint(Sketcher.Constraint("Vertical", 30))
sketch8.addConstraint(Sketcher.Constraint("Equal", 1, 3))
sketch8.addConstraint(Sketcher.Constraint("Equal", 3, 5))
sketch8.addConstraint(Sketcher.Constraint("Equal", 5, 7))
sketch8.addConstraint(Sketcher.Constraint("Equal", 7, 9))
sketch8.addConstraint(Sketcher.Constraint("Equal", 9, 11))
sketch8.addConstraint(Sketcher.Constraint("Equal", 11, 13))
sketch8.addConstraint(Sketcher.Constraint("Equal", 13, 15))
sketch8.addConstraint(Sketcher.Constraint("Equal", 15, 17))
sketch8.addConstraint(Sketcher.Constraint("Equal", 17, 19))
sketch8.addConstraint(Sketcher.Constraint("Equal", 19, 21))
sketch8.addConstraint(Sketcher.Constraint("Equal", 21, 23))
sketch8.addConstraint(Sketcher.Constraint("Equal", 23, 25))
sketch8.addConstraint(Sketcher.Constraint("Equal", 25, 27))
sketch8.addConstraint(Sketcher.Constraint("Equal", 27, 29))
sketch8.addConstraint(Sketcher.Constraint("Equal", 29, 31))
sketch8.addConstraint(Sketcher.Constraint("Horizontal", 15, 3, 17, 3))
sketch8.addConstraint(Sketcher.Constraint("Horizontal", 13, 3, 19, 3))
sketch8.addConstraint(Sketcher.Constraint("Equal", 12, 16))
sketch8.addConstraint(Sketcher.Constraint("Equal", 4, 24))
sketch8.addConstraint(Sketcher.Constraint("Equal", 28, 10))
sketch8.addConstraint(Sketcher.Constraint("Radius", 1, 1.0))
sketch8.addConstraint(Sketcher.Constraint("DistanceX", 0, 2, 0, 1, 1.0))
sketch8.addConstraint(Sketcher.Constraint("DistanceX", 8, 2, 8, 1, 24.0))
sketch8.addConstraint(Sketcher.Constraint("DistanceY", 2, 1, 2, 2, 18.0))
sketch8.addConstraint(Sketcher.Constraint("DistanceY", 26, 1, 26, 2, 32.0))
sketch8.addConstraint(Sketcher.Constraint("DistanceX", 1, 3, -1, 1, 56.0))
sketch8.addConstraint(Sketcher.Constraint("DistanceY", 1, 3, -1, 1, 57.0))
sketch8.addConstraint(Sketcher.Constraint("DistanceX", 9, 3, -1, 1, 50.0))
sketch8.addConstraint(Sketcher.Constraint("DistanceY", 9, 3, -1, 1, 66.0))
sketch8.addConstraint(Sketcher.Constraint("DistanceX", 17, 3, -1, 1, 12.0))
sketch8.addConstraint(Sketcher.Constraint("DistanceX", -1, 1, 25, 3, 55.0))
sketch8.addConstraint(Sketcher.Constraint("DistanceY", 25, 3, -1, 1, 16.0))
pocket6 = body.newObject("PartDesign::Pocket", "Pocket005")
pocket6.Profile = sketch8
pocket6.Type = "ThroughAll"
pocket6.Reversed = True
doc.recompute()

mirrored = body.newObject("PartDesign::Mirrored", "Mirrored")
mirrored.Originals = [pocket6]
mirrored.MirrorPlane = (doc.getObject("XY_Plane"), [""])
body.Tip = mirrored

# Sketch on XZ plane
sketch9 = body.newObject("Sketcher::SketchObject", "Sketch008")
sketch9.AttachmentSupport = (doc.getObject("XZ_Plane"), [""])
sketch9.MapMode = "FlatFace"
sketch9.AttachmentOffset = App.Placement(Vector(0, 0, -4), App.Rotation())
sketch9.addGeometry(Part.Circle(Vector(-54.5, 0, 0), Vector(0, 0, 1), 1.5), False)
sketch9.addGeometry(Part.Circle(Vector(54.5, 46.4, 0), Vector(0, 0, 1), 1.5), False)
sketch9.addGeometry(Part.Circle(Vector(54.5, -46.4, 0), Vector(0, 0, 1), 1.5), False)
sketch9.addConstraint(Sketcher.Constraint("Equal", 0, 1))
sketch9.addConstraint(Sketcher.Constraint("Equal", 1, 2))
sketch9.addConstraint(Sketcher.Constraint("Symmetric", 1, 3, 2, 3, -1))
sketch9.addConstraint(Sketcher.Constraint("PointOnObject", 0, 3, -1))
sketch9.addConstraint(Sketcher.Constraint("Diameter", 0, 3.0))
sketch9.addConstraint(Sketcher.Constraint("DistanceX", 0, 3, 1, 3, 109.0))
sketch9.addConstraint(Sketcher.Constraint("DistanceX", 0, 3, -1, 1, 54.5))
sketch9.addConstraint(Sketcher.Constraint("DistanceY", -1, 1, 1, 3, 46.4))
pocket7 = body.newObject("PartDesign::Pocket", "Pocket006")
pocket7.Profile = sketch9
pocket7.Type = "ThroughAll"
pocket7.Reversed = True

doc.recompute()
